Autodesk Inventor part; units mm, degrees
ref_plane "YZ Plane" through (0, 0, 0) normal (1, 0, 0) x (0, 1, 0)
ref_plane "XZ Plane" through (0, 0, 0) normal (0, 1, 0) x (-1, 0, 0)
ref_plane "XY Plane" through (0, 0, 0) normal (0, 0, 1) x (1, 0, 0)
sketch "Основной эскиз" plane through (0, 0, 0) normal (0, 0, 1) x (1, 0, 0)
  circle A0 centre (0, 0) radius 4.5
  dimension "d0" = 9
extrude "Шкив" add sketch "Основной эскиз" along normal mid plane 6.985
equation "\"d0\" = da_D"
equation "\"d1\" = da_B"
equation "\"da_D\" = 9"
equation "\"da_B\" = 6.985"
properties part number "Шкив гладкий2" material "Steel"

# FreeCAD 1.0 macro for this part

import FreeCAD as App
import Part
import Sketcher
from FreeCAD import Vector
Q = App.Units.Quantity

doc = App.newDocument("Part")
body = doc.addObject("PartDesign::Body", "Body")

# Sketch on XY plane
sketch1 = body.newObject("Sketcher::SketchObject", "Sketch")
sketch1.AttachmentSupport = (doc.getObject("XY_Plane"), [""])
sketch1.MapMode = "FlatFace"
sketch1.addGeometry(Part.Circle(Vector(0, 0, 0), Vector(0, 0, 1), 4.5), False)
sketch1.addConstraint(Sketcher.Constraint("Coincident", 0, 3, -1, 1))
sketch1.addConstraint(Sketcher.Constraint("Diameter", 0, Q("9 mm")))
pad1 = body.newObject("PartDesign::Pad", "Pad")
pad1.Profile = sketch1
pad1.Length = 6.985
pad1.Midplane = True

doc.recompute()
